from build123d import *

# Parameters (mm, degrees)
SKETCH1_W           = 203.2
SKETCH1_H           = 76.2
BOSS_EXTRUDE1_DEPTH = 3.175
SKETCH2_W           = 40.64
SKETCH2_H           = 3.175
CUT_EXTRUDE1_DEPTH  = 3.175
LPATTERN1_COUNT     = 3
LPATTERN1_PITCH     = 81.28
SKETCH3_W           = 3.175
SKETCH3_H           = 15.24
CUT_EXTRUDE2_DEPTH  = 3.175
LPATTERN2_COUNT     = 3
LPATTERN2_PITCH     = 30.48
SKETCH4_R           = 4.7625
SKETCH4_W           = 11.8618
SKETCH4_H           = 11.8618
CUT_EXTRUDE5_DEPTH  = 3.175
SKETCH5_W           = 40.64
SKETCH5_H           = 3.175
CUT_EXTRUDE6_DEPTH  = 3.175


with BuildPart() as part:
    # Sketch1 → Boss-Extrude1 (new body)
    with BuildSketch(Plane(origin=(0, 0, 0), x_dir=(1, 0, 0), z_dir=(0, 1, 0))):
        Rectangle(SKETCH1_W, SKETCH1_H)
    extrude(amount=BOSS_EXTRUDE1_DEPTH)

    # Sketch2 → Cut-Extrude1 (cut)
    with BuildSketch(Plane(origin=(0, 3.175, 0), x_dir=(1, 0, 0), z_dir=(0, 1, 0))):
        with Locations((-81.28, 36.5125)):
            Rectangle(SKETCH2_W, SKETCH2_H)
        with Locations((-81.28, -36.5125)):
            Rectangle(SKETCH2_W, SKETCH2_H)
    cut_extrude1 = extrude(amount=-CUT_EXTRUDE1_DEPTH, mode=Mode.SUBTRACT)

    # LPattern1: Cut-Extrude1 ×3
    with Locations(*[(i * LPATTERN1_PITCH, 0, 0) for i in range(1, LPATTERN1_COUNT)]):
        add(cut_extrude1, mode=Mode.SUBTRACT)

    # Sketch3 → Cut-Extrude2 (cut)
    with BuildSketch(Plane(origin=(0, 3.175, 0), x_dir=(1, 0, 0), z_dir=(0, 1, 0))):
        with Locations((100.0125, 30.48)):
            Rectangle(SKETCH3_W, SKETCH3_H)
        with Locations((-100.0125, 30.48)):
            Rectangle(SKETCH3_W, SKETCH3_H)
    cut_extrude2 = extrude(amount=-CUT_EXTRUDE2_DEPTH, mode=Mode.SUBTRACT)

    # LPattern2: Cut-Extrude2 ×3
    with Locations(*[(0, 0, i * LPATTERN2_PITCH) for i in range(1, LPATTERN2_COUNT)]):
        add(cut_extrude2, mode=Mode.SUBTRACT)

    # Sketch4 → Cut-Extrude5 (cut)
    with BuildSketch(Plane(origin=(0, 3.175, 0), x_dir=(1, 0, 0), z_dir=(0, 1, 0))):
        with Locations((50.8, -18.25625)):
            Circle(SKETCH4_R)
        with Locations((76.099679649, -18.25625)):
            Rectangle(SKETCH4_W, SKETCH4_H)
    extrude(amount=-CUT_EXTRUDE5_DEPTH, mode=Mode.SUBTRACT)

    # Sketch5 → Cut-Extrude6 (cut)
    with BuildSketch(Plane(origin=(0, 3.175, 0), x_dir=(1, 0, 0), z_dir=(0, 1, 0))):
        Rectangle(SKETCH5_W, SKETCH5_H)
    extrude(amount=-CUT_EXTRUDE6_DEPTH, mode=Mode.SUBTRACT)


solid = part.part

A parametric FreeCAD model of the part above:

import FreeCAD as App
import Part
import Sketcher

V = App.Vector
Q = App.Units.Quantity

doc = App.newDocument("Part")
params = doc.addObject("Spreadsheet::Sheet", "Params")
for row, (alias, value) in enumerate([
    ("sketch1_width", "8 in"),
    ("sketch1_height", "3 in"),
    ("pad1_length", "0.125 in"),
    ("sketch2_width", "1.6 in"),
    ("sketch2_height", "0.125 in"),
    ("pocket1_length", "0.125 in"),
    ("linearpattern_pitch", "3.2 in"),
    ("sketch3_height", "0.6 in"),
    ("sketch3_width", "0.125 in"),
    ("pocket2_length", "0.125 in"),
    ("linearpattern2_pitch", "1.2 in"),
    ("sketch4_diameter", "0.375 in"),
    ("sketch4_width", "0.467 in"),
    ("pocket3_length", "0.125 in"),
    ("sketch5_width", "1.6 in"),
    ("sketch5_height", "0.125 in"),
    ("pocket4_length", "0.125 in"),
], start=1):
    params.set(f"A{row}", alias)
    params.set(f"B{row}", "=" + value)
    params.setAlias(f"B{row}", alias)

body = doc.addObject("PartDesign::Body", "Body")

sketch1 = body.newObject("Sketcher::SketchObject", "Sketch")
sketch1.AttachmentSupport = (doc.getObject("XZ_Plane"), [""])
sketch1.MapMode = "FlatFace"
sketch1.addGeometry(Part.LineSegment(V(-101.6, -38.1, 0), V(-101.6, 38.1, 0)), False)
sketch1.addGeometry(Part.LineSegment(V(-101.6, 38.1, 0), V(101.6, 38.1, 0)), False)
sketch1.addGeometry(Part.LineSegment(V(101.6, 38.1, 0), V(101.6, -38.1, 0)), False)
sketch1.addGeometry(Part.LineSegment(V(101.6, -38.1, 0), V(-101.6, -38.1, 0)), False)
sketch1.addConstraint(Sketcher.Constraint("Coincident", 0, 2, 1, 1))
sketch1.addConstraint(Sketcher.Constraint("Coincident", 1, 2, 2, 1))
sketch1.addConstraint(Sketcher.Constraint("Coincident", 2, 2, 3, 1))
sketch1.addConstraint(Sketcher.Constraint("Coincident", 3, 2, 0, 1))
sketch1.addConstraint(Sketcher.Constraint("Vertical", 0))
sketch1.addConstraint(Sketcher.Constraint("Horizontal", 1))
sketch1.addConstraint(Sketcher.Constraint("Vertical", 2))
sketch1.addConstraint(Sketcher.Constraint("Horizontal", 3))
sketch1.addConstraint(Sketcher.Constraint("Symmetric", 0, 2, 2, 2, -1, 1))
sketch1.addConstraint(Sketcher.Constraint("DistanceX", 1, 1, 1, 2, Q("8 in")))
sketch1.addConstraint(Sketcher.Constraint("DistanceY", 0, 1, 0, 2, Q("3 in")))
sketch1.setExpression("Constraints[9]", "Params.sketch1_width")
sketch1.setExpression("Constraints[10]", "Params.sketch1_height")
pad1 = body.newObject("PartDesign::Pad", "Pad")
pad1.Profile = sketch1
pad1.setExpression("Length", "Params.pad1_length")
pad1.Reversed = True

sketch2 = body.newObject("Sketcher::SketchObject", "Sketch001")
sketch2.AttachmentSupport = (doc.getObject("XZ_Plane"), [""])
sketch2.MapMode = "FlatFace"
sketch2.AttachmentOffset = App.Placement(V(0, 0, -0.125 * 25.4), App.Rotation())
sketch2.addGeometry(Part.LineSegment(V(-101.6, -38.1, 0), V(-101.6, -34.925, 0)), False)
sketch2.addGeometry(Part.LineSegment(V(-101.6, -34.925, 0), V(-60.96, -34.925, 0)), False)
sketch2.addGeometry(Part.LineSegment(V(-60.96, -34.925, 0), V(-60.96, -38.1, 0)), False)
sketch2.addGeometry(Part.LineSegment(V(-60.96, -38.1, 0), V(-101.6, -38.1, 0)), False)
sketch2.addGeometry(Part.LineSegment(V(-101.6, 34.925, 0), V(-101.6, 38.1, 0)), False)
sketch2.addGeometry(Part.LineSegment(V(-101.6, 38.1, 0), V(-60.96, 38.1, 0)), False)
sketch2.addGeometry(Part.LineSegment(V(-60.96, 38.1, 0), V(-60.96, 34.925, 0)), False)
sketch2.addGeometry(Part.LineSegment(V(-60.96, 34.925, 0), V(-101.6, 34.925, 0)), False)
sketch2.addConstraint(Sketcher.Constraint("Coincident", 0, 2, 1, 1))
sketch2.addConstraint(Sketcher.Constraint("Coincident", 1, 2, 2, 1))
sketch2.addConstraint(Sketcher.Constraint("Coincident", 2, 2, 3, 1))
sketch2.addConstraint(Sketcher.Constraint("Coincident", 3, 2, 0, 1))
sketch2.addConstraint(Sketcher.Constraint("Coincident", 4, 2, 5, 1))
sketch2.addConstraint(Sketcher.Constraint("Coincident", 5, 2, 6, 1))
sketch2.addConstraint(Sketcher.Constraint("Coincident", 6, 2, 7, 1))
sketch2.addConstraint(Sketcher.Constraint("Coincident", 7, 2, 4, 1))
sketch2.addConstraint(Sketcher.Constraint("Vertical", 0))
sketch2.addConstraint(Sketcher.Constraint("Horizontal", 1))
sketch2.addConstraint(Sketcher.Constraint("Vertical", 2))
sketch2.addConstraint(Sketcher.Constraint("Horizontal", 3))
sketch2.addConstraint(Sketcher.Constraint("Vertical", 4))
sketch2.addConstraint(Sketcher.Constraint("Horizontal", 5))
sketch2.addConstraint(Sketcher.Constraint("Vertical", 6))
sketch2.addConstraint(Sketcher.Constraint("Horizontal", 7))
sketch2.addConstraint(Sketcher.Constraint("Symmetric", 3, 2, 4, 2, -1))
sketch2.addConstraint(Sketcher.Constraint("Symmetric", 1, 2, 6, 2, -1))
sketch2.addConstraint(Sketcher.Constraint("DistanceX", 1, 1, 1, 2, Q("1.6 in")))
sketch2.addConstraint(Sketcher.Constraint("DistanceX", 0, 2, -1, 1, Q("4 in")))
sketch2.addConstraint(Sketcher.Constraint("DistanceY", 3, 2, 4, 2, Q("3 in")))
sketch2.addConstraint(Sketcher.Constraint("DistanceY", 0, 1, 0, 2, Q("0.125 in")))
sketch2.setExpression("Constraints[18]", "Params.sketch2_width")
sketch2.setExpression("Constraints[21]", "Params.sketch2_height")
pocket1 = body.newObject("PartDesign::Pocket", "Pocket")
pocket1.Profile = sketch2
pocket1.setExpression("Length", "Params.pocket1_length")
pocket1.Reversed = True
doc.recompute()

linearpattern = body.newObject("PartDesign::LinearPattern", "LinearPattern")
linearpattern.Originals = [pocket1]
linearpattern.Direction = (doc.getObject("X_Axis"), [""])
linearpattern.Mode = "offset"
linearpattern.setExpression("Offset", "Params.linearpattern_pitch")
linearpattern.Occurrences = 3
body.Tip = linearpattern

sketch3 = body.newObject("Sketcher::SketchObject", "Sketch002")
sketch3.AttachmentSupport = (doc.getObject("XZ_Plane"), [""])
sketch3.MapMode = "FlatFace"
sketch3.AttachmentOffset = App.Placement(V(0, 0, -0.125 * 25.4), App.Rotation())
sketch3.addGeometry(Part.LineSegment(V(98.425, -38.1, 0), V(98.425, -22.86, 0)), False)
sketch3.addGeometry(Part.LineSegment(V(98.425, -22.86, 0), V(101.6, -22.86, 0)), False)
sketch3.addGeometry(Part.LineSegment(V(101.6, -22.86, 0), V(101.6, -38.1, 0)), False)
sketch3.addGeometry(Part.LineSegment(V(101.6, -38.1, 0), V(98.425, -38.1, 0)), False)
sketch3.addGeometry(Part.LineSegment(V(-101.6, -38.1, 0), V(-101.6, -22.86, 0)), False)
sketch3.addGeometry(Part.LineSegment(V(-101.6, -22.86, 0), V(-98.425, -22.86, 0)), False)
sketch3.addGeometry(Part.LineSegment(V(-98.425, -22.86, 0), V(-98.425, -38.1, 0)), False)
sketch3.addGeometry(Part.LineSegment(V(-98.425, -38.1, 0), V(-101.6, -38.1, 0)), False)
sketch3.addConstraint(Sketcher.Constraint("Coincident", 0, 2, 1, 1))
sketch3.addConstraint(Sketcher.Constraint("Coincident", 1, 2, 2, 1))
sketch3.addConstraint(Sketcher.Constraint("Coincident", 2, 2, 3, 1))
sketch3.addConstraint(Sketcher.Constraint("Coincident", 3, 2, 0, 1))
sketch3.addConstraint(Sketcher.Constraint("Coincident", 4, 2, 5, 1))
sketch3.addConstraint(Sketcher.Constraint("Coincident", 5, 2, 6, 1))
sketch3.addConstraint(Sketcher.Constraint("Coincident", 6, 2, 7, 1))
sketch3.addConstraint(Sketcher.Constraint("Coincident", 7, 2, 4, 1))
sketch3.addConstraint(Sketcher.Constraint("Vertical", 0))
sketch3.addConstraint(Sketcher.Constraint("Horizontal", 1))
sketch3.addConstraint(Sketcher.Constraint("Vertical", 2))
sketch3.addConstraint(Sketcher.Constraint("Horizontal", 3))
sketch3.addConstraint(Sketcher.Constraint("Vertical", 4))
sketch3.addConstraint(Sketcher.Constraint("Horizontal", 5))
sketch3.addConstraint(Sketcher.Constraint("Vertical", 6))
sketch3.addConstraint(Sketcher.Constraint("Horizontal", 7))
sketch3.addConstraint(Sketcher.Constraint("Symmetric", 1, 2, 4, 2, -2))
sketch3.addConstraint(Sketcher.Constraint("Symmetric", 3, 2, 6, 2, -2))
sketch3.addConstraint(Sketcher.Constraint("DistanceY", 0, 1, 0, 2, Q("0.6 in")))
sketch3.addConstraint(Sketcher.Constraint("DistanceX", -1, 1, 1, 2, Q("4 in")))
sketch3.addConstraint(Sketcher.Constraint("DistanceY", 0, 2, -1, 1, Q("0.9 in")))
sketch3.addConstraint(Sketcher.Constraint("DistanceX", 1, 1, 1, 2, Q("0.125 in")))
sketch3.setExpression("Constraints[18]", "Params.sketch3_height")
sketch3.setExpression("Constraints[21]", "Params.sketch3_width")
pocket2 = body.newObject("PartDesign::Pocket", "Pocket001")
pocket2.Profile = sketch3
pocket2.setExpression("Length", "Params.pocket2_length")
pocket2.Reversed = True
doc.recompute()

linearpattern2 = body.newObject("PartDesign::LinearPattern", "LinearPattern001")
linearpattern2.Originals = [pocket2]
linearpattern2.Direction = (doc.getObject("Z_Axis"), [""])
linearpattern2.Mode = "offset"
linearpattern2.setExpression("Offset", "Params.linearpattern2_pitch")
linearpattern2.Occurrences = 3
body.Tip = linearpattern2

sketch4 = body.newObject("Sketcher::SketchObject", "Sketch003")
sketch4.AttachmentSupport = (doc.getObject("XZ_Plane"), [""])
sketch4.MapMode = "FlatFace"
sketch4.AttachmentOffset = App.Placement(V(0, 0, -0.125 * 25.4), App.Rotation())
sketch4.addGeometry(Part.Circle(V(50.8, 18.25625, 0), V(0, 0, 1), 4.7625), False)
sketch4.addGeometry(Part.LineSegment(V(70.16878, 12.32535, 0), V(70.16878, 24.18715, 0)), False)
sketch4.addGeometry(Part.LineSegment(V(70.16878, 24.18715, 0), V(82.03058, 24.18715, 0)), False)
sketch4.addGeometry(Part.LineSegment(V(82.03058, 24.18715, 0), V(82.03058, 12.32535, 0)), False)
sketch4.addGeometry(Part.LineSegment(V(82.03058, 12.32535, 0), V(70.16878, 12.32535, 0)), False)
sketch4.addConstraint(Sketcher.Constraint("Coincident", 1, 2, 2, 1))
sketch4.addConstraint(Sketcher.Constraint("Coincident", 2, 2, 3, 1))
sketch4.addConstraint(Sketcher.Constraint("Coincident", 3, 2, 4, 1))
sketch4.addConstraint(Sketcher.Constraint("Coincident", 4, 2, 1, 1))
sketch4.addConstraint(Sketcher.Constraint("Vertical", 1))
sketch4.addConstraint(Sketcher.Constraint("Horizontal", 2))
sketch4.addConstraint(Sketcher.Constraint("Vertical", 3))
sketch4.addConstraint(Sketcher.Constraint("Horizontal", 4))
sketch4.addConstraint(Sketcher.Constraint("Equal", 4, 1))
sketch4.addConstraint(Sketcher.Constraint("Diameter", 0, Q("0.375 in")))
sketch4.addConstraint(Sketcher.Constraint("DistanceX", -1, 1, 0, 3, Q("2 in")))
sketch4.addConstraint(Sketcher.Constraint("DistanceX", 2, 1, 2, 2, Q("0.467 in")))
sketch4.addConstraint(Sketcher.Constraint("DistanceY", -1, 1, 0, 3, Q("0.71875 in")))
sketch4.addConstraint(Sketcher.Constraint("DistanceY", 0, 3, 1, 2, Q("0.2335 in")))
sketch4.addConstraint(Sketcher.Constraint("DistanceX", -1, 1, 1, 2, Q("70.16878 mm")))
sketch4.setExpression("Constraints[9]", "Params.sketch4_diameter")
sketch4.setExpression("Constraints[11]", "Params.sketch4_width")
pocket3 = body.newObject("PartDesign::Pocket", "Pocket002")
pocket3.Profile = sketch4
pocket3.setExpression("Length", "Params.pocket3_length")
pocket3.Reversed = True

sketch5 = body.newObject("Sketcher::SketchObject", "Sketch004")
sketch5.AttachmentSupport = (doc.getObject("XZ_Plane"), [""])
sketch5.MapMode = "FlatFace"
sketch5.AttachmentOffset = App.Placement(V(0, 0, -0.125 * 25.4), App.Rotation())
sketch5.addGeometry(Part.LineSegment(V(-20.32, -1.5875, 0), V(-20.32, 1.5875, 0)), False)
sketch5.addGeometry(Part.LineSegment(V(-20.32, 1.5875, 0), V(20.32, 1.5875, 0)), False)
sketch5.addGeometry(Part.LineSegment(V(20.32, 1.5875, 0), V(20.32, -1.5875, 0)), False)
sketch5.addGeometry(Part.LineSegment(V(20.32, -1.5875, 0), V(-20.32, -1.5875, 0)), False)
sketch5.addConstraint(Sketcher.Constraint("Coincident", 0, 2, 1, 1))
sketch5.addConstraint(Sketcher.Constraint("Coincident", 1, 2, 2, 1))
sketch5.addConstraint(Sketcher.Constraint("Coincident", 2, 2, 3, 1))
sketch5.addConstraint(Sketcher.Constraint("Coincident", 3, 2, 0, 1))
sketch5.addConstraint(Sketcher.Constraint("Vertical", 0))
sketch5.addConstraint(Sketcher.Constraint("Horizontal", 1))
sketch5.addConstraint(Sketcher.Constraint("Vertical", 2))
sketch5.addConstraint(Sketcher.Constraint("Horizontal", 3))
sketch5.addConstraint(Sketcher.Constraint("Symmetric", 0, 2, 2, 2, -1, 1))
sketch5.addConstraint(Sketcher.Constraint("DistanceX", 1, 1, 1, 2, Q("1.6 in")))
sketch5.addConstraint(Sketcher.Constraint("DistanceY", 0, 1, 0, 2, Q("0.125 in")))
sketch5.setExpression("Constraints[9]", "Params.sketch5_width")
sketch5.setExpression("Constraints[10]", "Params.sketch5_height")
pocket4 = body.newObject("PartDesign::Pocket", "Pocket003")
pocket4.Profile = sketch5
pocket4.setExpression("Length", "Params.pocket4_length")
pocket4.Reversed = True

doc.recompute()
